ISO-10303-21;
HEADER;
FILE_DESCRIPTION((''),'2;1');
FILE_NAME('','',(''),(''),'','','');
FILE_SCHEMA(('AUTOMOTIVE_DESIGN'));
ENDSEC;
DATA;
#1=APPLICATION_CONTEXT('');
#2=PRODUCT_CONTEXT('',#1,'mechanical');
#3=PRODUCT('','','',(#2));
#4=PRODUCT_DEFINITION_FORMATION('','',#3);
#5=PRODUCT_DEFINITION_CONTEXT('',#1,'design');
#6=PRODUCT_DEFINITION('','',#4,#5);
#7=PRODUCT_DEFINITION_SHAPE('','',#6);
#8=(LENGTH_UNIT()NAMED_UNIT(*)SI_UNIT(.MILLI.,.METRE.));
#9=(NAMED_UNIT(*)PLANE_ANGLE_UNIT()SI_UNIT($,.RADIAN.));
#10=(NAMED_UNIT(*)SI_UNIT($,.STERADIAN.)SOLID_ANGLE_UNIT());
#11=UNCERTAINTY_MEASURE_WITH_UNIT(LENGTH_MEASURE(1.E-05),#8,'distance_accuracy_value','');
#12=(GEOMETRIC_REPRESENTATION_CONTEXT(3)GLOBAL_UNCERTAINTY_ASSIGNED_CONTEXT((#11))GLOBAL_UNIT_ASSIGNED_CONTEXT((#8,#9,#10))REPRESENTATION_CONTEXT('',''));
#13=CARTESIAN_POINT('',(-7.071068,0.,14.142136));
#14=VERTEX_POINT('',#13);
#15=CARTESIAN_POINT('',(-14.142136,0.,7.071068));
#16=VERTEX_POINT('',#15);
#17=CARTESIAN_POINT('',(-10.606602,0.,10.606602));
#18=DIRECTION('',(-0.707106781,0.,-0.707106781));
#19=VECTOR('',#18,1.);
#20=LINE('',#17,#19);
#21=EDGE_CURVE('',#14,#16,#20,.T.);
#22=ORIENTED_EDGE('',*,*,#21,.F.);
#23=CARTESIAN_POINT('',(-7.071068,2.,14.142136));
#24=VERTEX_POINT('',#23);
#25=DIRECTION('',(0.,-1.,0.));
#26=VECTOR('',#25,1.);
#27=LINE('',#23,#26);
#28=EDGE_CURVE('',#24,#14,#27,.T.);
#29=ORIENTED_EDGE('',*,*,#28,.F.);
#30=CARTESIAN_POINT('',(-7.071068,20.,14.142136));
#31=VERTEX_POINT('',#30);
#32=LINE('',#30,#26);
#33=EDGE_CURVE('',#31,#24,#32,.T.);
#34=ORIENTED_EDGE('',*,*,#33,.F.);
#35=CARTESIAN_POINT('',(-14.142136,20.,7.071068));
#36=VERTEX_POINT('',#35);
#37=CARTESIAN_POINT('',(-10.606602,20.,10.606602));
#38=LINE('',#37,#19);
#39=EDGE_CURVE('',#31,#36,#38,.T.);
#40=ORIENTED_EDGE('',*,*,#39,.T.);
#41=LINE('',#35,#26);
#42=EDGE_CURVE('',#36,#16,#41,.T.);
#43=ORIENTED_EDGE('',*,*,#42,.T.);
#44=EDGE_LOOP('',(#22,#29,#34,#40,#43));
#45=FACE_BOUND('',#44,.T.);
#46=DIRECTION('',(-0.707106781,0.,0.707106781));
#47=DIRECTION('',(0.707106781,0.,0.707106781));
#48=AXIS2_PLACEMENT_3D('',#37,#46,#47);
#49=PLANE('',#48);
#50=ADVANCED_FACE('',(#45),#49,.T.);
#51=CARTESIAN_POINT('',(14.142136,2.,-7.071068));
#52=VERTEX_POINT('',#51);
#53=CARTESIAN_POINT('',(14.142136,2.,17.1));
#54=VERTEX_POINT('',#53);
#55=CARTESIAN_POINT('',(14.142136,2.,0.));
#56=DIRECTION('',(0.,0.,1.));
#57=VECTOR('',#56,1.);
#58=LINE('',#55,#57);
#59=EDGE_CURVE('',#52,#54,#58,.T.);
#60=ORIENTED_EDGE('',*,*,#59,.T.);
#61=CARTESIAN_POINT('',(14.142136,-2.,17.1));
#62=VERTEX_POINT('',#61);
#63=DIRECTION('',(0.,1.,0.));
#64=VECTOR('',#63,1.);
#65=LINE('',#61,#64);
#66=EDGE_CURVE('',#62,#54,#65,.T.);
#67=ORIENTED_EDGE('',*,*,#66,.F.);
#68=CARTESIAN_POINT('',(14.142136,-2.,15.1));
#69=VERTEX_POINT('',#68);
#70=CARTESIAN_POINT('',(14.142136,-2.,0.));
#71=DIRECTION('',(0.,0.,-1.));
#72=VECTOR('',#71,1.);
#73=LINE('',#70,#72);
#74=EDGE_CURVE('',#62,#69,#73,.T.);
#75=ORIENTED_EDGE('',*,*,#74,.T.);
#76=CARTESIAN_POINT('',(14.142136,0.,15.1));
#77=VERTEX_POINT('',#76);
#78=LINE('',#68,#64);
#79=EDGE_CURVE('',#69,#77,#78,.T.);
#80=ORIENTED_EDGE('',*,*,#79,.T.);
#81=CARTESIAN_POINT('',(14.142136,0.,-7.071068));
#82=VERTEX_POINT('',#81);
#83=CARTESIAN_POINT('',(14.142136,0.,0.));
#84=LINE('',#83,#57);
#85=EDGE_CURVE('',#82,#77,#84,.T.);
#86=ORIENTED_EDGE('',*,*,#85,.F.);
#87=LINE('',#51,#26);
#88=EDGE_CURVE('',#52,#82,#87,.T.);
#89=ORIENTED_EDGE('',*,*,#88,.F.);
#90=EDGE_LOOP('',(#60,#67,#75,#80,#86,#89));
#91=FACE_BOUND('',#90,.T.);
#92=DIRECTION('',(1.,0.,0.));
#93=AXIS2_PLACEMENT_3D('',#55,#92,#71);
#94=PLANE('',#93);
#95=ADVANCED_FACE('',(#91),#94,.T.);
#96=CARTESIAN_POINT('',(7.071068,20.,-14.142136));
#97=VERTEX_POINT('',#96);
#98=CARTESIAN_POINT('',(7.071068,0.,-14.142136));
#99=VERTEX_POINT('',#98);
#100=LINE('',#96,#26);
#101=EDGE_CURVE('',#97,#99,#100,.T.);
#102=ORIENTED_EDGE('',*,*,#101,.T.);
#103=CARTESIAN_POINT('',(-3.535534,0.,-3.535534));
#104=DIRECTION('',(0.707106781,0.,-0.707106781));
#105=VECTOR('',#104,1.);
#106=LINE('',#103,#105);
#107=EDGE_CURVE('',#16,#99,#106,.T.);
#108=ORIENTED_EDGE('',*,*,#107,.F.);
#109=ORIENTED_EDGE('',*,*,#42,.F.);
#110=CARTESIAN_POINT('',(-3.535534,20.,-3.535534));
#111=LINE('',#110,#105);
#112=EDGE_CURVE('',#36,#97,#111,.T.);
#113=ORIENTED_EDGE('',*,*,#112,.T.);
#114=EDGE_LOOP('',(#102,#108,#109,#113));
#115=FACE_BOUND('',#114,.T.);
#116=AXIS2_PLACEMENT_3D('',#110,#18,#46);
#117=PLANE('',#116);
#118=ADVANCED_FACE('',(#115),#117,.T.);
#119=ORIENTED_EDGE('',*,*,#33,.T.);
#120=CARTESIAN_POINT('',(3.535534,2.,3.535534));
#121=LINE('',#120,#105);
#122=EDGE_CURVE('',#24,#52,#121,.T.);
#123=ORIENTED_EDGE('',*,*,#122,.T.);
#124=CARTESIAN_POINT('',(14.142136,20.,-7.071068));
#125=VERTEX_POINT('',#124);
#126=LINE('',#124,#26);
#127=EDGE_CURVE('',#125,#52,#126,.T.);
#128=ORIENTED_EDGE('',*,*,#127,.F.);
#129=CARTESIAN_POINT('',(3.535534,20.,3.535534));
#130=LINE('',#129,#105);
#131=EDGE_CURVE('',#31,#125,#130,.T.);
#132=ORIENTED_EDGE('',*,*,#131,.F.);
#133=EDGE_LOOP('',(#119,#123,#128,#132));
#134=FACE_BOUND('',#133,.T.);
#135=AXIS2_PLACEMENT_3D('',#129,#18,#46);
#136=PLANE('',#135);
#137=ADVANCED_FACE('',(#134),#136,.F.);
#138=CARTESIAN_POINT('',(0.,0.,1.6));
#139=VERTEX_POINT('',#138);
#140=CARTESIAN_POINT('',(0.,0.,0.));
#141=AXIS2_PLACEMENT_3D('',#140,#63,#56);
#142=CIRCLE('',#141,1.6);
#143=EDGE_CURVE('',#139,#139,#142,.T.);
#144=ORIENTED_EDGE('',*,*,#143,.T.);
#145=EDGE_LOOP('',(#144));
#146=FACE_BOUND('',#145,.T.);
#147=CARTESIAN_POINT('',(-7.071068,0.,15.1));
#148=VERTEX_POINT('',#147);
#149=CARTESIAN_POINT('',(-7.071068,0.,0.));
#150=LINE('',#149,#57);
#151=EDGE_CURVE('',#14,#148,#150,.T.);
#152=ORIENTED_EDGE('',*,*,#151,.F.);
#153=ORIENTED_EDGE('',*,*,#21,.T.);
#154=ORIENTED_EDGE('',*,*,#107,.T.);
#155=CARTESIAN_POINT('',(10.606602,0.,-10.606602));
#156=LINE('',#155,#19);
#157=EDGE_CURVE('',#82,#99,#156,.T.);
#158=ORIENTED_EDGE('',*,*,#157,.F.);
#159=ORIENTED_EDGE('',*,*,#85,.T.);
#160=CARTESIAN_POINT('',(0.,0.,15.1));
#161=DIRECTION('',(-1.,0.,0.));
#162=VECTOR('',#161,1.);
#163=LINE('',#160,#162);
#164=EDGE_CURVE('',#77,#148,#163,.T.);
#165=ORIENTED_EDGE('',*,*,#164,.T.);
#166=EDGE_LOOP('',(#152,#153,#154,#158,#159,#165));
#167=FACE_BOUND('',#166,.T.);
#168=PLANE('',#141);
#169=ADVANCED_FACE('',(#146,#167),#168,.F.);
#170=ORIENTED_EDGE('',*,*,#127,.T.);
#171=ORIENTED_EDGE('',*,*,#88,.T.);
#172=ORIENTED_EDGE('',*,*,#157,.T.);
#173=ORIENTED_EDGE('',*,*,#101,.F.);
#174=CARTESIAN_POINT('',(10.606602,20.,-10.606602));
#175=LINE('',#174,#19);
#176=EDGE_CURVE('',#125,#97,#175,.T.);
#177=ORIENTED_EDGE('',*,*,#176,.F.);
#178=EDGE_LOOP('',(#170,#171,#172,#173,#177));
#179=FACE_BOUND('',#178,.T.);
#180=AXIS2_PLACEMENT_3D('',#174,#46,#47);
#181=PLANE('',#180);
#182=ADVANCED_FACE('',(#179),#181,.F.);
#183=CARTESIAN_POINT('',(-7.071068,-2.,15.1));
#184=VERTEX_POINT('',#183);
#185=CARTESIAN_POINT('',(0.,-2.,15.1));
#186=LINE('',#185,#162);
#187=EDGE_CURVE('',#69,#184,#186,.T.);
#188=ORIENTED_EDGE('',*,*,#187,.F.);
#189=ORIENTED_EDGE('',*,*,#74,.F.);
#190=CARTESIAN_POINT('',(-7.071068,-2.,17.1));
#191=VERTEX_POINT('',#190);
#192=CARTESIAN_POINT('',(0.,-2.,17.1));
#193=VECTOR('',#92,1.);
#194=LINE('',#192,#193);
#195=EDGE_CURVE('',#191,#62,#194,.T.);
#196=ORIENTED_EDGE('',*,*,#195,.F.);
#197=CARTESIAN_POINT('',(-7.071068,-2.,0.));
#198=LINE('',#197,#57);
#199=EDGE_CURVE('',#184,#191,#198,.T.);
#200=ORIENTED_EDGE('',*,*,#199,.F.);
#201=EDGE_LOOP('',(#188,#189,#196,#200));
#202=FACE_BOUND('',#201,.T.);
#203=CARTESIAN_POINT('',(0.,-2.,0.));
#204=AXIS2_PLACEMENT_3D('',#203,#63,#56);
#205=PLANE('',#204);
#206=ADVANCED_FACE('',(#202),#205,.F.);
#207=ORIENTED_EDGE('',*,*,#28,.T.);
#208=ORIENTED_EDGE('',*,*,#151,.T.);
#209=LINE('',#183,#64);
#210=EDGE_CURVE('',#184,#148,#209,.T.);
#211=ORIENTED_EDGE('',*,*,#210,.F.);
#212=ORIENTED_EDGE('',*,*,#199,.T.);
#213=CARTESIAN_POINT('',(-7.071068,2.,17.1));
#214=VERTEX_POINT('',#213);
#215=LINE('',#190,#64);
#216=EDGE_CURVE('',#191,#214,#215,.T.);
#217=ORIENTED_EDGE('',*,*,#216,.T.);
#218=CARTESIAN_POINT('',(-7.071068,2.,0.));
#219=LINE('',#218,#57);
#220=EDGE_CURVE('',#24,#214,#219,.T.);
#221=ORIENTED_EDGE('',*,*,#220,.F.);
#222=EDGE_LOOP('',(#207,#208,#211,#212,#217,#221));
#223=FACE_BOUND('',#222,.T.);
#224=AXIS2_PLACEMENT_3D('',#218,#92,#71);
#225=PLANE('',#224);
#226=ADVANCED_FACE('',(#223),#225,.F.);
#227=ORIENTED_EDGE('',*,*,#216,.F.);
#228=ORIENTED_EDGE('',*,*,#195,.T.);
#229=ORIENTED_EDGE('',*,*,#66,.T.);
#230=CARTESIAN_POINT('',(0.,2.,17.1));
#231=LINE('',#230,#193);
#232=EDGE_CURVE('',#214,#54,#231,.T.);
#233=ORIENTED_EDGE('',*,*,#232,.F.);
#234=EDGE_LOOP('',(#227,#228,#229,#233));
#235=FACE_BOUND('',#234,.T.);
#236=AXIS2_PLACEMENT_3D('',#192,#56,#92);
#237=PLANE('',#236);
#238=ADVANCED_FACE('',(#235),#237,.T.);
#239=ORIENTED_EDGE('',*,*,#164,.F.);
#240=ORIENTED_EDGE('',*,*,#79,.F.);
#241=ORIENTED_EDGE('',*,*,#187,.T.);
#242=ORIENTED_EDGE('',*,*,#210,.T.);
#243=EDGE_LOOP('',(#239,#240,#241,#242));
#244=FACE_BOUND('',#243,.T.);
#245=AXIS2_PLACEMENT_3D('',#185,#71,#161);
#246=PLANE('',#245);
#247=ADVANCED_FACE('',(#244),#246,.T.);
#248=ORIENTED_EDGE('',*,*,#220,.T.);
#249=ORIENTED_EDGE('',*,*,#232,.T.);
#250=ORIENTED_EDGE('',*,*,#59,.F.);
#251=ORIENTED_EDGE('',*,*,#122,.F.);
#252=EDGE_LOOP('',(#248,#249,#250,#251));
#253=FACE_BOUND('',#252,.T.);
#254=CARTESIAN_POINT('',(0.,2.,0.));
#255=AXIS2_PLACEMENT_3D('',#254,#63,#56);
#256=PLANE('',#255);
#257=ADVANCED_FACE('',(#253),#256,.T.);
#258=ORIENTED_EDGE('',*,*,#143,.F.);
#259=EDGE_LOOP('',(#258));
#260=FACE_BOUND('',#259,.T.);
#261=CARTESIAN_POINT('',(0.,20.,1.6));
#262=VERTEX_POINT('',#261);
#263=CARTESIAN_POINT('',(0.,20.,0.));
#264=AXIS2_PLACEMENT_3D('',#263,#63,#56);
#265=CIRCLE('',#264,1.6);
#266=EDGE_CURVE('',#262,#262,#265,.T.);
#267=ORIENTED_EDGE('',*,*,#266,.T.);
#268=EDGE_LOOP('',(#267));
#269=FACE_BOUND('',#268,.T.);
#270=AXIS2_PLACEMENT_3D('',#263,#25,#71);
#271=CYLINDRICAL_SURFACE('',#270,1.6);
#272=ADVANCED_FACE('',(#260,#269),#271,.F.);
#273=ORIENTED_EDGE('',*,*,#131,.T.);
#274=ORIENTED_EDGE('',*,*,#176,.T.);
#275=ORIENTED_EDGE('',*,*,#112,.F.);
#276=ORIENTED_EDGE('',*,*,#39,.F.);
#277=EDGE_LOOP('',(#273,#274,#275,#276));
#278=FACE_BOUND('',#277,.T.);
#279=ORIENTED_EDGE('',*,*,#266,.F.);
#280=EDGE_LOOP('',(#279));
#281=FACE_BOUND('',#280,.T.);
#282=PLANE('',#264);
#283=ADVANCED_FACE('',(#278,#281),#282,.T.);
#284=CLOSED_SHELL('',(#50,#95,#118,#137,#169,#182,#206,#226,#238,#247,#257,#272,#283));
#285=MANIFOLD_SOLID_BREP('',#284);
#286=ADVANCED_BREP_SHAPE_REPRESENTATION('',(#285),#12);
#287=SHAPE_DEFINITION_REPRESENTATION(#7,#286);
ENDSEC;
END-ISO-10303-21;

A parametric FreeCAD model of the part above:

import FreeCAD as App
import Part
import Sketcher

V = App.Vector
Q = App.Units.Quantity


def add_polygon(sketch, points):
    """Adds a closed chain of lines whose ends are joined by coincident constraints."""
    first, n = sketch.GeometryCount, len(points)
    for a, b in zip(points, points[1:] + points[:1]):
        sketch.addGeometry(Part.LineSegment(App.Vector(*a, 0), App.Vector(*b, 0)), False)
    for i in range(n):
        sketch.addConstraint(Sketcher.Constraint("Coincident", first + i, 2, first + (i + 1) % n, 1))

doc = App.newDocument("Part")
params = doc.addObject("Spreadsheet::Sheet", "Params")
for row, (alias, value) in enumerate([
    ("sketch1_diameter", "3.2 mm"),
    ("sketch1_length", "30 mm"),
    ("sketch1_length2", "10 mm"),
    ("pad1_length", "20 mm"),
    ("sketch2_length", "30 mm"),
    ("pad2_length", "2 mm"),
    ("sketch3_height", "2 mm"),
    ("pad3_length", "2 mm"),
    ("pad3_length2", "2 mm"),
], start=1):
    params.set(f"A{row}", alias)
    params.set(f"B{row}", "=" + value)
    params.setAlias(f"B{row}", alias)

body = doc.addObject("PartDesign::Body", "Body")

# Sketch on XZ plane
sketch1 = doc.addObject("Sketcher::SketchObject", "Sketch")
body.addObject(sketch1)
sketch1.AttachmentSupport = (doc.XZ_Plane, [""])
sketch1.MapMode = "FlatFace"
add_polygon(sketch1, [(-7.1, 14.1), (14.1, -7.1), (7.1, -14.1), (-14.1, 7.1)])  # lines 0-3
sketch1.addGeometry(Part.Circle(V(0, 0, 0), V(0, 0, 1), 1.6), False)  # 4
sketch1.addConstraint([
    Sketcher.Constraint("Coincident", 4, 3, -1, 1),
    Sketcher.Constraint("Symmetric", 0, 2, 2, 2, -1, 1),
    Sketcher.Constraint("Symmetric", 1, 2, 3, 2, -1, 1),
    Sketcher.Constraint("Perpendicular", 0, 1),
    Sketcher.Constraint("Diameter", 4, Q("3.2 mm")),
    Sketcher.Constraint("Angle", 0, Q("-45 deg")),
    Sketcher.Constraint("Distance", 0, Q("30 mm")),
    Sketcher.Constraint("Distance", 1, Q("10 mm")),
])
sketch1.setExpression("Constraints[8]", "Params.sketch1_diameter")
sketch1.setExpression("Constraints[10]", "Params.sketch1_length")
sketch1.setExpression("Constraints[11]", "Params.sketch1_length2")
pad1 = doc.addObject("PartDesign::Pad", "Pad")
body.addObject(pad1)
pad1.Profile = sketch1
pad1.setExpression("Length", "Params.pad1_length")
pad1.Reversed = True

# Sketch on XZ plane
sketch2 = doc.addObject("Sketcher::SketchObject", "Sketch001")
body.addObject(sketch2)
sketch2.AttachmentSupport = (doc.XZ_Plane, [""])
sketch2.MapMode = "FlatFace"
add_polygon(sketch2, [(14.1, -7.1), (-7.1, 14.1), (-7.1, 15.1), (14.1, 15.1)])  # lines 0-3
sketch2.addConstraint([
    Sketcher.Constraint("Vertical", 1),
    Sketcher.Constraint("Horizontal", 2),
    Sketcher.Constraint("Vertical", 3),
    Sketcher.Constraint("Angle", 0, Q("135 deg")),
    Sketcher.Constraint("Distance", 0, Q("30 mm")),
    Sketcher.Constraint("DistanceY", -1, 1, 1, 2, Q("15.1 mm")),
    Sketcher.Constraint("DistanceY", 1, 1, 1, 2, Q("0.957864 mm")),
    Sketcher.Constraint("DistanceX", 0, 2, -1, 1, Q("7.071068 mm")),
])
sketch2.setExpression("Constraints[8]", "Params.sketch2_length")
pad2 = doc.addObject("PartDesign::Pad", "Pad001")
body.addObject(pad2)
pad2.Profile = sketch2
pad2.setExpression("Length", "Params.pad2_length")
pad2.Reversed = True

# Sketch on XZ plane
sketch3 = doc.addObject("Sketcher::SketchObject", "Sketch002")
body.addObject(sketch3)
sketch3.AttachmentSupport = (doc.XZ_Plane, [""])
sketch3.MapMode = "FlatFace"
add_polygon(sketch3, [(-7.1, 15.1), (-7.1, 17.1), (14.1, 17.1), (14.1, 15.1)])  # lines 0-3
sketch3.addConstraint([
    Sketcher.Constraint("Vertical", 0),
    Sketcher.Constraint("Horizontal", 1),
    Sketcher.Constraint("Vertical", 2),
    Sketcher.Constraint("Horizontal", 3),
    Sketcher.Constraint("DistanceY", 0, 1, 0, 2, Q("2 mm")),
    Sketcher.Constraint("DistanceY", -1, 1, 0, 2, Q("17.1 mm")),
    Sketcher.Constraint("DistanceX", 1, 1, 1, 2, Q("21.213203 mm")),
    Sketcher.Constraint("DistanceX", 0, 2, -1, 1, Q("7.071068 mm")),
])
sketch3.setExpression("Constraints[8]", "Params.sketch3_height")
pad3 = doc.addObject("PartDesign::Pad", "Pad002")
body.addObject(pad3)
pad3.Profile = sketch3
pad3.Type = "TwoLengths"
pad3.setExpression("Length", "Params.pad3_length")
pad3.setExpression("Length2", "Params.pad3_length2")
pad3.Reversed = True

doc.recompute()
